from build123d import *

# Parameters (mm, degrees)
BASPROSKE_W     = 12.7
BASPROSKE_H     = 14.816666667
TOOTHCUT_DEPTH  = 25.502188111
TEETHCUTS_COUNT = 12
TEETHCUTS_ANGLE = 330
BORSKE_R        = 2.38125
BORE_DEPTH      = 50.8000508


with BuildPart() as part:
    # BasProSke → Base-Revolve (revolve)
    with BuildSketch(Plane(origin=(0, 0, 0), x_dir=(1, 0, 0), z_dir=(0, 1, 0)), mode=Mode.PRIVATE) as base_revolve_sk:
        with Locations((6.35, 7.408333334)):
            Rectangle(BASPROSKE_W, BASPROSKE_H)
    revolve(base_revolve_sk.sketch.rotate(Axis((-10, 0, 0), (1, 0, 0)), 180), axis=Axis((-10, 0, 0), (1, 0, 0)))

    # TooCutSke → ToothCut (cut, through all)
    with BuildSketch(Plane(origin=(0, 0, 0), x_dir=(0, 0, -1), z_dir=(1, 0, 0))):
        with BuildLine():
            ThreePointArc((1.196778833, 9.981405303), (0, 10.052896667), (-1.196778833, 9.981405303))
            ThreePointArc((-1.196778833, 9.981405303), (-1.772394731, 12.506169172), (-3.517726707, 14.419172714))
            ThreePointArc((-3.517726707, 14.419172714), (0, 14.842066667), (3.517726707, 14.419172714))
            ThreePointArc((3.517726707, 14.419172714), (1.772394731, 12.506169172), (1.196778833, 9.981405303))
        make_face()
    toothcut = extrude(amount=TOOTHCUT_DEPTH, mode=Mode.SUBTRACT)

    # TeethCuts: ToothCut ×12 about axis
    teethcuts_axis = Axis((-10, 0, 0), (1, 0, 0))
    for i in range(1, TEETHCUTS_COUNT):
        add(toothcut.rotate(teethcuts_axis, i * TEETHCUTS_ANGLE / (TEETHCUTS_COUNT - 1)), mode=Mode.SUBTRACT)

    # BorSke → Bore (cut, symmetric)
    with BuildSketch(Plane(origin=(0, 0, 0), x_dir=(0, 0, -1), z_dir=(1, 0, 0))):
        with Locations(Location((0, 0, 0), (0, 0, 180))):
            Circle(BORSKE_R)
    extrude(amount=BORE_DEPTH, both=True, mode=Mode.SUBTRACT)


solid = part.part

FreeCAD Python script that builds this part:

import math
import FreeCAD as App
import Part
import Sketcher

V = App.Vector
Q = App.Units.Quantity


def add_polygon(sketch, points):
    """Adds a closed chain of lines whose ends are joined by coincident constraints."""
    first, n = sketch.GeometryCount, len(points)
    for a, b in zip(points, points[1:] + points[:1]):
        sketch.addGeometry(Part.LineSegment(App.Vector(*a, 0), App.Vector(*b, 0)), False)
    for i in range(n):
        sketch.addConstraint(Sketcher.Constraint("Coincident", first + i, 2, first + (i + 1) % n, 1))

doc = App.newDocument("Part")
params = doc.addObject("Spreadsheet::Sheet", "Params")
for row, (alias, value) in enumerate([
    ("sketch1_width", "0.5 in"),
    ("revolution_angle", "360 deg"),
    ("sketch2_radius", "0.2 in"),
    ("sketch3_diameter", "0.1875 in"),
    ("pocket2_length", "101.600102 mm"),
], start=1):
    params.set(f"A{row}", alias)
    params.set(f"B{row}", "=" + value)
    params.setAlias(f"B{row}", alias)

body = doc.addObject("PartDesign::Body", "Body")

sketch1 = doc.addObject("Sketcher::SketchObject", "Sketch")
body.addObject(sketch1)
sketch1.AttachmentSupport = (doc.XZ_Plane, [""])
sketch1.MapMode = "FlatFace"
add_polygon(sketch1, [(0, -14.816667), (0, 0), (12.7, 0), (12.7, -14.816667)])
sketch1.addConstraint(Sketcher.Constraint("Vertical", 0))
sketch1.addConstraint(Sketcher.Constraint("Horizontal", 1))
sketch1.addConstraint(Sketcher.Constraint("Vertical", 2))
sketch1.addConstraint(Sketcher.Constraint("Horizontal", 3))
sketch1.addConstraint(Sketcher.Constraint("Coincident", 0, 2, -1, 1))
sketch1.addConstraint(Sketcher.Constraint("DistanceX", 1, 1, 1, 2, Q("0.5 in")))
sketch1.addConstraint(Sketcher.Constraint("DistanceY", 0, 1, 0, 2, Q("14.816667 mm")))
sketch1.setExpression("Constraints[9]", "Params.sketch1_width")
revolution = doc.addObject("PartDesign::Revolution", "Revolution")
body.addObject(revolution)
revolution.Profile = sketch1
revolution.ReferenceAxis = (sketch1, ["H_Axis"])
revolution.setExpression("Angle", "Params.revolution_angle")

sketch2 = doc.addObject("Sketcher::SketchObject", "Sketch001")
body.addObject(sketch2)
sketch2.AttachmentSupport = (doc.YZ_Plane, [""])
sketch2.MapMode = "FlatFace"
sketch2.addGeometry(Part.ArcOfCircle(Part.Circle(V(0, 0, 0), V(0, 0, 1), 10.052897), math.radians(-6.837172), math.radians(6.837172)), False)
sketch2.addGeometry(Part.ArcOfCircle(Part.Circle(V(10.151877, -6.273918, 0), V(0, 0, 1), 5.08), math.radians(32.857895), math.radians(91.923062)), False)
sketch2.addGeometry(Part.ArcOfCircle(Part.Circle(V(0, 0, 0), V(0, 0, 1), 14.842067), math.radians(-13.710169), math.radians(13.710169)), False)
sketch2.addGeometry(Part.ArcOfCircle(Part.Circle(V(10.151877, 6.273918, 0), V(0, 0, 1), 5.08), math.radians(-91.923062), math.radians(-32.857895)), False)
sketch2.addConstraint(Sketcher.Constraint("Coincident", 0, 1, 1, 2))
sketch2.addConstraint(Sketcher.Constraint("Coincident", 1, 1, 2, 1))
sketch2.addConstraint(Sketcher.Constraint("Coincident", 2, 2, 3, 2))
sketch2.addConstraint(Sketcher.Constraint("Coincident", 3, 1, 0, 2))
sketch2.addConstraint(Sketcher.Constraint("Coincident", 0, 3, -1, 1))
sketch2.addConstraint(Sketcher.Constraint("Coincident", 2, 3, -1, 1))
sketch2.addConstraint(Sketcher.Constraint("Equal", 1, 3))
sketch2.addConstraint(Sketcher.Constraint("Symmetric", 1, 3, 3, 3, -1))
sketch2.addConstraint(Sketcher.Constraint("Radius", 1, Q("0.2 in")))
sketch2.addConstraint(Sketcher.Constraint("Radius", 0, Q("10.052897 mm")))
sketch2.addConstraint(Sketcher.Constraint("Radius", 2, Q("14.842067 mm")))
sketch2.addConstraint(Sketcher.Constraint("DistanceY", 0, 1, -1, 1, Q("1.196779 mm")))
sketch2.addConstraint(Sketcher.Constraint("DistanceX", 0, 1, 1, 3, Q("0.170472 mm")))
sketch2.setExpression("Constraints[8]", "Params.sketch2_radius")
pocket1 = doc.addObject("PartDesign::Pocket", "Pocket")
body.addObject(pocket1)
pocket1.Profile = sketch2
pocket1.Type = "ThroughAll"
pocket1.Reversed = True
doc.recompute()

polarpattern = doc.addObject("PartDesign::PolarPattern", "PolarPattern")
body.addObject(polarpattern)
polarpattern.Originals = [pocket1]
polarpattern.Axis = (doc.X_Axis, [""])
polarpattern.Angle = 360
polarpattern.Occurrences = 12
body.Tip = polarpattern

sketch3 = doc.addObject("Sketcher::SketchObject", "Sketch002")
body.addObject(sketch3)
sketch3.AttachmentSupport = (doc.YZ_Plane, [""])
sketch3.MapMode = "FlatFace"
sketch3.addGeometry(Part.Circle(V(0, 0, 0), V(0, 0, 1), 2.38125), False)
sketch3.addConstraint(Sketcher.Constraint("Coincident", 0, 3, -1, 1))
sketch3.addConstraint(Sketcher.Constraint("Diameter", 0, Q("0.1875 in")))
sketch3.setExpression("Constraints[1]", "Params.sketch3_diameter")
pocket2 = doc.addObject("PartDesign::Pocket", "Pocket001")
body.addObject(pocket2)
pocket2.Profile = sketch3
pocket2.setExpression("Length", "Params.pocket2_length")
pocket2.Midplane = True

doc.recompute()
